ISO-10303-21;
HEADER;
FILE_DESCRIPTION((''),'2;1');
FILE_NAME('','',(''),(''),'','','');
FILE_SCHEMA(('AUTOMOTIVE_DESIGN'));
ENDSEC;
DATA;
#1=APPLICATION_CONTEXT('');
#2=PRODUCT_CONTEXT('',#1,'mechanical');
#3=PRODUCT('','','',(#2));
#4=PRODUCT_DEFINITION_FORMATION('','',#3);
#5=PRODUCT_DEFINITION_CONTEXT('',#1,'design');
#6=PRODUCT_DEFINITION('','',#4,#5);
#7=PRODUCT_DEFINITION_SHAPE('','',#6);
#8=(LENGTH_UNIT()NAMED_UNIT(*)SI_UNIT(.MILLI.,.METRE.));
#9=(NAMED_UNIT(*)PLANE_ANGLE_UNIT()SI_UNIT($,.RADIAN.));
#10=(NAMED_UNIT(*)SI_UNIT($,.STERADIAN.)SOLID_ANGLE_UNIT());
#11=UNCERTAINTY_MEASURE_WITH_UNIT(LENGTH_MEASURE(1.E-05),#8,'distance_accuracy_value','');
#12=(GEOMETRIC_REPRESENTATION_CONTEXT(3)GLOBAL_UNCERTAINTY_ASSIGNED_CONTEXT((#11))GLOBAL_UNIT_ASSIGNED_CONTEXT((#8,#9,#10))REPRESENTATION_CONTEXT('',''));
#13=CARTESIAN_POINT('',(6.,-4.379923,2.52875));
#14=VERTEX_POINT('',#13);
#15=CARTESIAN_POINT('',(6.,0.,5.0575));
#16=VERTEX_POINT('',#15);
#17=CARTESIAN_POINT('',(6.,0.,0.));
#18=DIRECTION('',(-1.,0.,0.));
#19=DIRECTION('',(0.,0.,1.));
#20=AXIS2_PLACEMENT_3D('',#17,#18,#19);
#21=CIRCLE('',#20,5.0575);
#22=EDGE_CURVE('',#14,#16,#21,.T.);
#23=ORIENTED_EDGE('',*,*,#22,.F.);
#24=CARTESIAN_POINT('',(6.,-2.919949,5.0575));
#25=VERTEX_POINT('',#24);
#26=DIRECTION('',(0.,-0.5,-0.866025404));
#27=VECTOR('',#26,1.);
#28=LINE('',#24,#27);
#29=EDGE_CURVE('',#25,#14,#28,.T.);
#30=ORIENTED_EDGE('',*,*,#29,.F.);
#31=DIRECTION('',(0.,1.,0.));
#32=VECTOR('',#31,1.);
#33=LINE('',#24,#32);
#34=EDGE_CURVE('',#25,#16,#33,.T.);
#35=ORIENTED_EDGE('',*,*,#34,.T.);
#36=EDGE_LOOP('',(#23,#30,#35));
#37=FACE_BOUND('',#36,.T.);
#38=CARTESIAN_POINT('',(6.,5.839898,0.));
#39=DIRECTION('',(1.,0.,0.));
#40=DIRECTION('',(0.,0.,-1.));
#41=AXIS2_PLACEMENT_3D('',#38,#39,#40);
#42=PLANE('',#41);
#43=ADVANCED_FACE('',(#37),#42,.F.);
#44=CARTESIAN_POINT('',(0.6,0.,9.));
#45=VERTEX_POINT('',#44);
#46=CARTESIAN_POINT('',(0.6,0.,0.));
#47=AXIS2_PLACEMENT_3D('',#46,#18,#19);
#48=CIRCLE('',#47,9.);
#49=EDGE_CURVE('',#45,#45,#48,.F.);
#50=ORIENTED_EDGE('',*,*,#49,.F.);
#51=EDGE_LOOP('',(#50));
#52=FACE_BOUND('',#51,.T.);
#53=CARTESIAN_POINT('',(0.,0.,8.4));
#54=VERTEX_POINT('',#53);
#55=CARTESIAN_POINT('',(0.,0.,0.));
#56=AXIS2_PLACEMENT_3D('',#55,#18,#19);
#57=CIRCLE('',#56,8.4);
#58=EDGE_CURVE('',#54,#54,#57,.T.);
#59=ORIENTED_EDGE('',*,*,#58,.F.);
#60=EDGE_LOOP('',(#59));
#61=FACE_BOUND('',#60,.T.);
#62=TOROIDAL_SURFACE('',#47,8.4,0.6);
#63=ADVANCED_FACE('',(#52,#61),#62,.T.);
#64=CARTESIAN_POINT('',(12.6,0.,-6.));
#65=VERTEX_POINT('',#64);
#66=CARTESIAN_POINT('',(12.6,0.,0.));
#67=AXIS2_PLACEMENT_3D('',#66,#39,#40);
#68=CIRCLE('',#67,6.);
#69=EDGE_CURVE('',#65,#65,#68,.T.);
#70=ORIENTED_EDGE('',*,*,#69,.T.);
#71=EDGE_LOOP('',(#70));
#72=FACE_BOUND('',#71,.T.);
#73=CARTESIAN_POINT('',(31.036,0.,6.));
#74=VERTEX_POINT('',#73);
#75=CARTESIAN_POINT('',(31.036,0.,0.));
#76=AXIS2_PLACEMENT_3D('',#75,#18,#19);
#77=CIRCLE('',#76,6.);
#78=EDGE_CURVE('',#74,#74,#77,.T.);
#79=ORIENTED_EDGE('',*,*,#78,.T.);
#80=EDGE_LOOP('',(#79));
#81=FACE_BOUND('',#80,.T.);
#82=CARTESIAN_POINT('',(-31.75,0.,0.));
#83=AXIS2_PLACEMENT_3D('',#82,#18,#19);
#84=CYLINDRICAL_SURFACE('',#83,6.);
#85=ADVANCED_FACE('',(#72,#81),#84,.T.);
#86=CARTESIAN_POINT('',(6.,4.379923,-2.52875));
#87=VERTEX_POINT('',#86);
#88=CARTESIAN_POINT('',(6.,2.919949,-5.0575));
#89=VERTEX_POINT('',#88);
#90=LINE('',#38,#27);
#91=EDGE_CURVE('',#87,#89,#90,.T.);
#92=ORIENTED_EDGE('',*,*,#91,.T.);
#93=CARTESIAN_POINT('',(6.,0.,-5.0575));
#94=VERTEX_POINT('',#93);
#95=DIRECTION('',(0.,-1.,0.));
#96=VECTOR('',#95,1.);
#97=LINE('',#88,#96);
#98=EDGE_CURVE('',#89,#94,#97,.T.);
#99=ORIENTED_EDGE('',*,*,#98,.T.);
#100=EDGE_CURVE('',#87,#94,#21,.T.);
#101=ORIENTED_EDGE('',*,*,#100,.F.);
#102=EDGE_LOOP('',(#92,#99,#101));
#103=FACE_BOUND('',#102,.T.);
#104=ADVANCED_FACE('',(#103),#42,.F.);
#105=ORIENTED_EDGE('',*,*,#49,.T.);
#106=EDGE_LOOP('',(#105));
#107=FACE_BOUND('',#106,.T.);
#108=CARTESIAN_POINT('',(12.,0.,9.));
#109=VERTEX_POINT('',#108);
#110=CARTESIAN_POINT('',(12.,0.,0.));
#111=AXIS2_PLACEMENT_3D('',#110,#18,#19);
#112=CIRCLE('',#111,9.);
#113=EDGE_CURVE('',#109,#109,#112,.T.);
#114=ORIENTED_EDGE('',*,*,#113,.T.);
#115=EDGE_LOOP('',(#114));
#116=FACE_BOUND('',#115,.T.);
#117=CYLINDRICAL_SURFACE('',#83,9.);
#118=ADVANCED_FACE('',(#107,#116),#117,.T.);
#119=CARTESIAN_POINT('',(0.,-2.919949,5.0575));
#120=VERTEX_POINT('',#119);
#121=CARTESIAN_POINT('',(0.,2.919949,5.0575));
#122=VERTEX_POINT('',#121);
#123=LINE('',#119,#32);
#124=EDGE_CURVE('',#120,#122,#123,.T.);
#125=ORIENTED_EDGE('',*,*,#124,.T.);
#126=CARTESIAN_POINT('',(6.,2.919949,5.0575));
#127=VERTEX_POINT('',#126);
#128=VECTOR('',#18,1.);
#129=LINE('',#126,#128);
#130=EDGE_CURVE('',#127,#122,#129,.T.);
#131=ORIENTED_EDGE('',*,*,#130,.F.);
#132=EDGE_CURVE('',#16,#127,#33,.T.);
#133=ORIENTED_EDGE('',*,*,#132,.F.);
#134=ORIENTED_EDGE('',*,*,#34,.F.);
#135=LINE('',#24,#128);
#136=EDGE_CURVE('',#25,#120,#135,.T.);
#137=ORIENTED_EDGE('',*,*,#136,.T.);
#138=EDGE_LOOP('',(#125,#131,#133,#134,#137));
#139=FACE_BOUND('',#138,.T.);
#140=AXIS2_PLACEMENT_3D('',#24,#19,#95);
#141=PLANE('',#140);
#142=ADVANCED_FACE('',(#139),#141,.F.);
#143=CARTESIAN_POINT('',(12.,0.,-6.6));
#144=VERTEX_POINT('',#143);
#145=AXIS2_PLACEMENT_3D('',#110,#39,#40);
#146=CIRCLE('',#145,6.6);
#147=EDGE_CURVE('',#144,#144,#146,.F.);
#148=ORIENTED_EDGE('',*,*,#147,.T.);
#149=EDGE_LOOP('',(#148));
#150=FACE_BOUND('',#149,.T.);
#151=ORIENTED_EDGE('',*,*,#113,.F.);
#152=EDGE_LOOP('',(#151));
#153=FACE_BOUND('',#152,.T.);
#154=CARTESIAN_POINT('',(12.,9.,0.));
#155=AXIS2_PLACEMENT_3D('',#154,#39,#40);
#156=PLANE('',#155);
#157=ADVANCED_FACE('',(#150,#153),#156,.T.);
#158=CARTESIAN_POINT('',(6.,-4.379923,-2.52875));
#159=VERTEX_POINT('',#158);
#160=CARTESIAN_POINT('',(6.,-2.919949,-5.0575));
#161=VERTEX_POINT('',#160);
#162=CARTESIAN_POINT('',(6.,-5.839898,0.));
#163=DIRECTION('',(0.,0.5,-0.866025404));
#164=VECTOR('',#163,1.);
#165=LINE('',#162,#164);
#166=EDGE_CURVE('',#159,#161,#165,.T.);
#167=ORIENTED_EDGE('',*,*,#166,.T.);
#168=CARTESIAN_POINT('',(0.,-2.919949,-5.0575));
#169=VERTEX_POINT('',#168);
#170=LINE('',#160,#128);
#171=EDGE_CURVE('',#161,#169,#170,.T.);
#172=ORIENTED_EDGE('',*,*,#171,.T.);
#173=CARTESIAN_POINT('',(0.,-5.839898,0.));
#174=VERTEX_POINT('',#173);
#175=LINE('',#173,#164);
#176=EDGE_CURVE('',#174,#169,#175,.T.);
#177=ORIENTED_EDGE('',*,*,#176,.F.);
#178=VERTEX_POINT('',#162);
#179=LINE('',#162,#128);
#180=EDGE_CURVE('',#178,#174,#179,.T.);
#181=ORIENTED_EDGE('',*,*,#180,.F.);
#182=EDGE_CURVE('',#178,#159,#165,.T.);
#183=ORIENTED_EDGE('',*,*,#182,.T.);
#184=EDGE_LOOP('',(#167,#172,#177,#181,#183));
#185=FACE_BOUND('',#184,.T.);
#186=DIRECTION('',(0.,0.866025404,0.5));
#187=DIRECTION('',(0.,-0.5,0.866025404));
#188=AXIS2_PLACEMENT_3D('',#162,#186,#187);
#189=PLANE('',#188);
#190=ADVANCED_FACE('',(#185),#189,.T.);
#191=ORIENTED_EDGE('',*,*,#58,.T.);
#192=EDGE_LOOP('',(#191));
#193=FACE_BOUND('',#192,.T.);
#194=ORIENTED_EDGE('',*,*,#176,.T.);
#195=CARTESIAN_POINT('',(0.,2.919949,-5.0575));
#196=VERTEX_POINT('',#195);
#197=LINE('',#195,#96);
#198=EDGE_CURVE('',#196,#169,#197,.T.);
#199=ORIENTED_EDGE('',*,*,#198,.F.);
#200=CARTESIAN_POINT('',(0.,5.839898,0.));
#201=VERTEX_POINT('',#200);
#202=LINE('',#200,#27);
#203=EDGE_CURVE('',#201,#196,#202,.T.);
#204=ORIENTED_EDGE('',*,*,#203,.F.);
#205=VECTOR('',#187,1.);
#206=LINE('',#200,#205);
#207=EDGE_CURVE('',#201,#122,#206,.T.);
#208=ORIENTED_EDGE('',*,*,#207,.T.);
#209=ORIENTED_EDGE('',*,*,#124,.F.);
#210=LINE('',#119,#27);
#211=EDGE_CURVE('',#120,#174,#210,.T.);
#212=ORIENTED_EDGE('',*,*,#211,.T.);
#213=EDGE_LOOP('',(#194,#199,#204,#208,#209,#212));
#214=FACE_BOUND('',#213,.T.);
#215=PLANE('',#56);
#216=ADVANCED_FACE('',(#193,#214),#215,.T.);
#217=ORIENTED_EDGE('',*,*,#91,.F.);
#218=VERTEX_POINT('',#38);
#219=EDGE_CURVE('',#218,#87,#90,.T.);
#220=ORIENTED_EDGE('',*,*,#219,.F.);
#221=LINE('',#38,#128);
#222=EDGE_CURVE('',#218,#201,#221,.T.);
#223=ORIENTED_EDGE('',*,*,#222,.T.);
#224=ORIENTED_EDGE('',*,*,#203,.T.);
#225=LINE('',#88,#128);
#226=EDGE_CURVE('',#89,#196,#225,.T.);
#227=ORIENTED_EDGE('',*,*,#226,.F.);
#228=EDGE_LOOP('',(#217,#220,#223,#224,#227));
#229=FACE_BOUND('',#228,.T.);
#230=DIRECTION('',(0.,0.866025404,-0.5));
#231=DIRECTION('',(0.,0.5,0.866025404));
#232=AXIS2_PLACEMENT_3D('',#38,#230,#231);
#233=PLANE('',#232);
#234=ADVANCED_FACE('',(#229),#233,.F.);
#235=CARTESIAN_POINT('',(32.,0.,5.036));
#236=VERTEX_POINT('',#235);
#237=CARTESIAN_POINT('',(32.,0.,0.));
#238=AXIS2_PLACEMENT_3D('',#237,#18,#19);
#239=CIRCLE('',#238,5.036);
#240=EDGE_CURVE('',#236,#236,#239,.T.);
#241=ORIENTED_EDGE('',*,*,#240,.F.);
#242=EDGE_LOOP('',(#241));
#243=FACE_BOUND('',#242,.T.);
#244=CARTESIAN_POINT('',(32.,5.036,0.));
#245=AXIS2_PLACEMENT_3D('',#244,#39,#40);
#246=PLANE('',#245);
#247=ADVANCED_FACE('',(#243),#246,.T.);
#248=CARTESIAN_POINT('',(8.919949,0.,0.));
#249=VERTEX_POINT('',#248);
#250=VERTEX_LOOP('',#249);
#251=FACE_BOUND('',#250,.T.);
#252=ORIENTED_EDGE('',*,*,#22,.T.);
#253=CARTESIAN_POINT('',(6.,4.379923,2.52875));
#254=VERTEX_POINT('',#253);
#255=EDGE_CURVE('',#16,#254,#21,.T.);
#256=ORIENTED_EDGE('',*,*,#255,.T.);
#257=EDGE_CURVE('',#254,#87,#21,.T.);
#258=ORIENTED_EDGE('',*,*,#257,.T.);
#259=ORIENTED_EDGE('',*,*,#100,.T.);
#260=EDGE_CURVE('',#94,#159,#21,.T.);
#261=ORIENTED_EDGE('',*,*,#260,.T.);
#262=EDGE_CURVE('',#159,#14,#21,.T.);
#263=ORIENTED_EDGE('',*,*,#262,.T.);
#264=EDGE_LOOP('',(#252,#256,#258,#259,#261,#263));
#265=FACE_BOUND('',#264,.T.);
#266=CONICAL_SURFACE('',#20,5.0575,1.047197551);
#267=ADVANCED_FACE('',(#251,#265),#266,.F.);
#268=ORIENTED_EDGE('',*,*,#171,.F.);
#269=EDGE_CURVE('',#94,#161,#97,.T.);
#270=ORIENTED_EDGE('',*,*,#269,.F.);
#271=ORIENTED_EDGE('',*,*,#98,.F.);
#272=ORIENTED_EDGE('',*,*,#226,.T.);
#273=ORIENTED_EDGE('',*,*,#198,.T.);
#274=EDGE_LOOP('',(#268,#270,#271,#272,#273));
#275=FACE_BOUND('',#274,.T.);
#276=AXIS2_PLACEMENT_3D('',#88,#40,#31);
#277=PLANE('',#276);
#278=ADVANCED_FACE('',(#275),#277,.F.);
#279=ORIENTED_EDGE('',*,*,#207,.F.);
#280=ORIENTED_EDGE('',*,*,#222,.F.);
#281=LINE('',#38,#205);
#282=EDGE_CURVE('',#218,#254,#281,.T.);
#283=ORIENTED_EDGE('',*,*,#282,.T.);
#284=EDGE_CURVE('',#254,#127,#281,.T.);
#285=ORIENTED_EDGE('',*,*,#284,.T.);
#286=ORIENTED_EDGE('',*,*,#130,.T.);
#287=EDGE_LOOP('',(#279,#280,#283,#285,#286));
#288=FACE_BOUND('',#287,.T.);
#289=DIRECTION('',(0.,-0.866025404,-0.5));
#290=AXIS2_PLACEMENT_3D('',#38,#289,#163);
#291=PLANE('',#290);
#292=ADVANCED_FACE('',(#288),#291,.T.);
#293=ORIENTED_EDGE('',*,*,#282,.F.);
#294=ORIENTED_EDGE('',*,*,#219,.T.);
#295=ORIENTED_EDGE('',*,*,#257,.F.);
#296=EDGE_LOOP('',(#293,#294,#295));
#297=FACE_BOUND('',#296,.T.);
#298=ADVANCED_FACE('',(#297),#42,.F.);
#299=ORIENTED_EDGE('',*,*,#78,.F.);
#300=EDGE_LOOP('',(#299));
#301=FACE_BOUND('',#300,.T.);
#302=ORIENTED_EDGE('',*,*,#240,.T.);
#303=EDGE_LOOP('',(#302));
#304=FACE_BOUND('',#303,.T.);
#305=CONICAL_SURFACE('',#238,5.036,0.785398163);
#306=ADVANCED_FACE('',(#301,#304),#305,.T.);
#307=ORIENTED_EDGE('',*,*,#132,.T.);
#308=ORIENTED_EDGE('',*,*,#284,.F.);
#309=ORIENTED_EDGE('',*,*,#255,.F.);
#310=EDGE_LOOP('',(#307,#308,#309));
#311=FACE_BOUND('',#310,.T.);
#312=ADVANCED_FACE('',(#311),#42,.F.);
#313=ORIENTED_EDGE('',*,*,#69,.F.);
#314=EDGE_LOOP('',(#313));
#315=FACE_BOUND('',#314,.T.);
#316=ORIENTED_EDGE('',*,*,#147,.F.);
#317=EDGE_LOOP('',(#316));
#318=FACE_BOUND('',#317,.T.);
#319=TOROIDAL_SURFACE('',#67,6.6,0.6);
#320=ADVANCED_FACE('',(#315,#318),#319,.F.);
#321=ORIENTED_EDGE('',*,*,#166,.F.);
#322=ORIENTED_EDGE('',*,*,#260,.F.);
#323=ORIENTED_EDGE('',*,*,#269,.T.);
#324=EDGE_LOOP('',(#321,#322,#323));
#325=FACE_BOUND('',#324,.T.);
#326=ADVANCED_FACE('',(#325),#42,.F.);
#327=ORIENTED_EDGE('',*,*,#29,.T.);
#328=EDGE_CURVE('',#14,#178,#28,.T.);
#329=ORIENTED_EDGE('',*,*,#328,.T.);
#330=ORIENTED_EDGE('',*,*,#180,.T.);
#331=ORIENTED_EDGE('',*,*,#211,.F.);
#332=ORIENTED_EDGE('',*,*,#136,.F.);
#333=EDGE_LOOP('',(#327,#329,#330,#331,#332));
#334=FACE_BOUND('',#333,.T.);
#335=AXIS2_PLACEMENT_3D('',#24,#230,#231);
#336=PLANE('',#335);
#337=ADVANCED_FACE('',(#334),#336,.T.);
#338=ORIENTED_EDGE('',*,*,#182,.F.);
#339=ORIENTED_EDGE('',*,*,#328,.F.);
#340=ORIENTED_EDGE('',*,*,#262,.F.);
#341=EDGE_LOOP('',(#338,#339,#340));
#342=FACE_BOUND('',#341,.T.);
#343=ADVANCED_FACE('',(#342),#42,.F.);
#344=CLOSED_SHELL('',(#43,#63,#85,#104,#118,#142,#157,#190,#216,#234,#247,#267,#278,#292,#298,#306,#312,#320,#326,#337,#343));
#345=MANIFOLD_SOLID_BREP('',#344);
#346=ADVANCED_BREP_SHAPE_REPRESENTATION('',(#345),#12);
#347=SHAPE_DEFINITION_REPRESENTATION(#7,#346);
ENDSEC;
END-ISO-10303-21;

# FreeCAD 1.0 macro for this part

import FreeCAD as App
import Part
import Sketcher
from FreeCAD import Vector
Q = App.Units.Quantity


def edges_at(feature, points):
    """Names of the edges that pass closest to the given points."""
    edges = feature.Shape.Edges
    near = lambda p: min(range(len(edges)), key=lambda i: edges[i].distToShape(Part.Vertex(*p))[0])
    return sorted({f"Edge{near(p) + 1}" for p in points})


def add_polygon(sketch, points):
    """Adds a closed chain of lines whose ends are joined by coincident constraints."""
    first, n = sketch.GeometryCount, len(points)
    for a, b in zip(points, points[1:] + points[:1]):
        sketch.addGeometry(Part.LineSegment(App.Vector(*a, 0), App.Vector(*b, 0)), False)
    for i in range(n):
        sketch.addConstraint(Sketcher.Constraint("Coincident", first + i, 2, first + (i + 1) % n, 1))

doc = App.newDocument("Part")
params = doc.addObject("Spreadsheet::Sheet", "Params")
for row, (alias, value) in enumerate([
    ("sketch1_width", "32 mm"),
    ("sketch1_width2", "12 mm"),
    ("sketch1_height", "9 mm"),
    ("sketch1_height2", "3 mm"),
    ("revolution_angle", "360 deg"),
    ("fillet_radius", "0.6 mm"),
    ("fillet2_radius", "0.6 mm"),
    ("sketch2_width", "6 mm"),
    ("groove_angle", "360 deg"),
    ("pocket1_length", "6 mm"),
], start=1):
    params.set(f"A{row}", alias)
    params.set(f"B{row}", "=" + value)
    params.setAlias(f"B{row}", alias)

body = doc.addObject("PartDesign::Body", "Body")

# Sketch on XY plane
sketch1 = body.newObject("Sketcher::SketchObject", "Sketch")
sketch1.AttachmentSupport = (doc.getObject("XY_Plane"), [""])
sketch1.MapMode = "FlatFace"
add_polygon(sketch1, [(0, 9), (0, 0), (32, 0), (32, 5), (31, 6), (12, 6), (12, 9)])  # lines 0-6
sketch1.addConstraint([
    Sketcher.Constraint("Vertical", 0),
    Sketcher.Constraint("Horizontal", 1),
    Sketcher.Constraint("Vertical", 2),
    Sketcher.Constraint("Horizontal", 4),
    Sketcher.Constraint("Vertical", 5),
    Sketcher.Constraint("Horizontal", 6),
    Sketcher.Constraint("Coincident", 0, 2, -1, 1),
    Sketcher.Constraint("DistanceX", 1, 1, 1, 2, 32.0),
    Sketcher.Constraint("DistanceX", 6, 2, 6, 1, 12.0),
    Sketcher.Constraint("DistanceY", 0, 2, 0, 1, 9.0),
    Sketcher.Constraint("DistanceY", 5, 1, 5, 2, 3.0),
    Sketcher.Constraint("Angle", 3, Q("135 deg")),
    Sketcher.Constraint("DistanceX", 4, 2, 4, 1, 19.036),
])
sketch1.setExpression("Constraints[14]", "Params.sketch1_width")
sketch1.setExpression("Constraints[15]", "Params.sketch1_width2")
sketch1.setExpression("Constraints[16]", "Params.sketch1_height")
sketch1.setExpression("Constraints[17]", "Params.sketch1_height2")
revolution = body.newObject("PartDesign::Revolution", "Revolution")
revolution.Profile = sketch1
revolution.ReferenceAxis = (sketch1, ["H_Axis"])
revolution.setExpression("Angle", "Params.revolution_angle")
doc.recompute()

fillet = body.newObject("PartDesign::Fillet", "Fillet")
fillet.Base = (revolution, edges_at(revolution, [(12, 0, -6)]))
fillet.setExpression("Radius", "Params.fillet_radius")
doc.recompute()

fillet2 = body.newObject("PartDesign::Fillet", "Fillet001")
fillet2.Base = (fillet, edges_at(fillet, [(0, 0, -9)]))
fillet2.setExpression("Radius", "Params.fillet2_radius")

# Sketch on XY plane
sketch2 = body.newObject("Sketcher::SketchObject", "Sketch001")
sketch2.AttachmentSupport = (doc.getObject("XY_Plane"), [""])
sketch2.MapMode = "FlatFace"
add_polygon(sketch2, [(6, 5), (0, 5), (0, 0), (9, 0)])  # lines 0-3
sketch2.addConstraint([
    Sketcher.Constraint("Horizontal", 0),
    Sketcher.Constraint("Vertical", 1),
    Sketcher.Constraint("Horizontal", 2),
    Sketcher.Constraint("Coincident", 1, 2, -1, 1),
    Sketcher.Constraint("DistanceX", 0, 2, 0, 1, 6.0),
    Sketcher.Constraint("Angle", 3, Q("120 deg")),
    Sketcher.Constraint("DistanceY", 1, 2, 1, 1, 5.0575),
])
sketch2.setExpression("Constraints[8]", "Params.sketch2_width")
groove = body.newObject("PartDesign::Groove", "Groove")
groove.Profile = sketch2
groove.ReferenceAxis = (sketch2, ["H_Axis"])
groove.setExpression("Angle", "Params.groove_angle")

# Sketch on YZ plane
sketch3 = body.newObject("Sketcher::SketchObject", "Sketch002")
sketch3.AttachmentSupport = (doc.getObject("YZ_Plane"), [""])
sketch3.MapMode = "FlatFace"
add_polygon(sketch3, [(6, 0), (3, -5), (-3, -5), (-6, 0), (-3, 5), (3, 5)])  # lines 0-5
sketch3.addConstraint([
    Sketcher.Constraint("Horizontal", 1),
    Sketcher.Constraint("Horizontal", 4),
    Sketcher.Constraint("Symmetric", 0, 2, 3, 2, -1, 1),
    Sketcher.Constraint("Symmetric", 2, 2, 5, 2, -1, 1),
    Sketcher.Constraint("PointOnObject", 2, 2, -1),
    Sketcher.Constraint("Parallel", 2, 5),
    Sketcher.Constraint("Vertical", 1, 2, 3, 2),
    Sketcher.Constraint("Angle", 0, Q("-120 deg")),
    Sketcher.Constraint("DistanceY", 1, 2, 3, 2, 10.115),
    Sketcher.Constraint("DistanceX", 1, 2, 1, 1, 5.839898),
])
pocket1 = body.newObject("PartDesign::Pocket", "Pocket")
pocket1.Profile = sketch3
pocket1.setExpression("Length", "Params.pocket1_length")
pocket1.Reversed = True

doc.recompute()
